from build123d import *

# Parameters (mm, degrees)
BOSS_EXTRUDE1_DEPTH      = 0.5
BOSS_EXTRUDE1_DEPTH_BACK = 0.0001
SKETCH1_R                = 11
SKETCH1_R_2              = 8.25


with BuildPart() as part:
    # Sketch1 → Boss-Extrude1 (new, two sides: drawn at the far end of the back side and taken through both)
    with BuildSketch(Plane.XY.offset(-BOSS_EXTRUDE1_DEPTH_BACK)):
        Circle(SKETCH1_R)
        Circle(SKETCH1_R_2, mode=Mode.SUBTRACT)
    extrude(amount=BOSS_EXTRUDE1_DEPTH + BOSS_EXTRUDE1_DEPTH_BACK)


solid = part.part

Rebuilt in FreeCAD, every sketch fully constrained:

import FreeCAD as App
import Part
import Sketcher
from FreeCAD import Vector
Q = App.Units.Quantity

doc = App.newDocument("Part")
body = doc.addObject("PartDesign::Body", "Body")

# Sketch on XY plane
sketch1 = body.newObject("Sketcher::SketchObject", "Sketch")
sketch1.AttachmentSupport = (doc.getObject("XY_Plane"), [""])
sketch1.MapMode = "FlatFace"
sketch1.addGeometry(Part.Circle(Vector(0, 0, 0), Vector(0, 0, 1), 11), False)
sketch1.addGeometry(Part.Circle(Vector(0, 0, 0), Vector(0, 0, 1), 8), False)
sketch1.addConstraint(Sketcher.Constraint("Coincident", 0, 3, -1, 1))
sketch1.addConstraint(Sketcher.Constraint("Coincident", 1, 3, -1, 1))
sketch1.addConstraint(Sketcher.Constraint("Diameter", 0, Q("22 mm")))
sketch1.addConstraint(Sketcher.Constraint("Diameter", 1, Q("16.5 mm")))
pad1 = body.newObject("PartDesign::Pad", "Pad")
pad1.Profile = sketch1
pad1.Type = "TwoLengths"
pad1.Length = 0.5
pad1.Length2 = 0.0001

doc.recompute()
